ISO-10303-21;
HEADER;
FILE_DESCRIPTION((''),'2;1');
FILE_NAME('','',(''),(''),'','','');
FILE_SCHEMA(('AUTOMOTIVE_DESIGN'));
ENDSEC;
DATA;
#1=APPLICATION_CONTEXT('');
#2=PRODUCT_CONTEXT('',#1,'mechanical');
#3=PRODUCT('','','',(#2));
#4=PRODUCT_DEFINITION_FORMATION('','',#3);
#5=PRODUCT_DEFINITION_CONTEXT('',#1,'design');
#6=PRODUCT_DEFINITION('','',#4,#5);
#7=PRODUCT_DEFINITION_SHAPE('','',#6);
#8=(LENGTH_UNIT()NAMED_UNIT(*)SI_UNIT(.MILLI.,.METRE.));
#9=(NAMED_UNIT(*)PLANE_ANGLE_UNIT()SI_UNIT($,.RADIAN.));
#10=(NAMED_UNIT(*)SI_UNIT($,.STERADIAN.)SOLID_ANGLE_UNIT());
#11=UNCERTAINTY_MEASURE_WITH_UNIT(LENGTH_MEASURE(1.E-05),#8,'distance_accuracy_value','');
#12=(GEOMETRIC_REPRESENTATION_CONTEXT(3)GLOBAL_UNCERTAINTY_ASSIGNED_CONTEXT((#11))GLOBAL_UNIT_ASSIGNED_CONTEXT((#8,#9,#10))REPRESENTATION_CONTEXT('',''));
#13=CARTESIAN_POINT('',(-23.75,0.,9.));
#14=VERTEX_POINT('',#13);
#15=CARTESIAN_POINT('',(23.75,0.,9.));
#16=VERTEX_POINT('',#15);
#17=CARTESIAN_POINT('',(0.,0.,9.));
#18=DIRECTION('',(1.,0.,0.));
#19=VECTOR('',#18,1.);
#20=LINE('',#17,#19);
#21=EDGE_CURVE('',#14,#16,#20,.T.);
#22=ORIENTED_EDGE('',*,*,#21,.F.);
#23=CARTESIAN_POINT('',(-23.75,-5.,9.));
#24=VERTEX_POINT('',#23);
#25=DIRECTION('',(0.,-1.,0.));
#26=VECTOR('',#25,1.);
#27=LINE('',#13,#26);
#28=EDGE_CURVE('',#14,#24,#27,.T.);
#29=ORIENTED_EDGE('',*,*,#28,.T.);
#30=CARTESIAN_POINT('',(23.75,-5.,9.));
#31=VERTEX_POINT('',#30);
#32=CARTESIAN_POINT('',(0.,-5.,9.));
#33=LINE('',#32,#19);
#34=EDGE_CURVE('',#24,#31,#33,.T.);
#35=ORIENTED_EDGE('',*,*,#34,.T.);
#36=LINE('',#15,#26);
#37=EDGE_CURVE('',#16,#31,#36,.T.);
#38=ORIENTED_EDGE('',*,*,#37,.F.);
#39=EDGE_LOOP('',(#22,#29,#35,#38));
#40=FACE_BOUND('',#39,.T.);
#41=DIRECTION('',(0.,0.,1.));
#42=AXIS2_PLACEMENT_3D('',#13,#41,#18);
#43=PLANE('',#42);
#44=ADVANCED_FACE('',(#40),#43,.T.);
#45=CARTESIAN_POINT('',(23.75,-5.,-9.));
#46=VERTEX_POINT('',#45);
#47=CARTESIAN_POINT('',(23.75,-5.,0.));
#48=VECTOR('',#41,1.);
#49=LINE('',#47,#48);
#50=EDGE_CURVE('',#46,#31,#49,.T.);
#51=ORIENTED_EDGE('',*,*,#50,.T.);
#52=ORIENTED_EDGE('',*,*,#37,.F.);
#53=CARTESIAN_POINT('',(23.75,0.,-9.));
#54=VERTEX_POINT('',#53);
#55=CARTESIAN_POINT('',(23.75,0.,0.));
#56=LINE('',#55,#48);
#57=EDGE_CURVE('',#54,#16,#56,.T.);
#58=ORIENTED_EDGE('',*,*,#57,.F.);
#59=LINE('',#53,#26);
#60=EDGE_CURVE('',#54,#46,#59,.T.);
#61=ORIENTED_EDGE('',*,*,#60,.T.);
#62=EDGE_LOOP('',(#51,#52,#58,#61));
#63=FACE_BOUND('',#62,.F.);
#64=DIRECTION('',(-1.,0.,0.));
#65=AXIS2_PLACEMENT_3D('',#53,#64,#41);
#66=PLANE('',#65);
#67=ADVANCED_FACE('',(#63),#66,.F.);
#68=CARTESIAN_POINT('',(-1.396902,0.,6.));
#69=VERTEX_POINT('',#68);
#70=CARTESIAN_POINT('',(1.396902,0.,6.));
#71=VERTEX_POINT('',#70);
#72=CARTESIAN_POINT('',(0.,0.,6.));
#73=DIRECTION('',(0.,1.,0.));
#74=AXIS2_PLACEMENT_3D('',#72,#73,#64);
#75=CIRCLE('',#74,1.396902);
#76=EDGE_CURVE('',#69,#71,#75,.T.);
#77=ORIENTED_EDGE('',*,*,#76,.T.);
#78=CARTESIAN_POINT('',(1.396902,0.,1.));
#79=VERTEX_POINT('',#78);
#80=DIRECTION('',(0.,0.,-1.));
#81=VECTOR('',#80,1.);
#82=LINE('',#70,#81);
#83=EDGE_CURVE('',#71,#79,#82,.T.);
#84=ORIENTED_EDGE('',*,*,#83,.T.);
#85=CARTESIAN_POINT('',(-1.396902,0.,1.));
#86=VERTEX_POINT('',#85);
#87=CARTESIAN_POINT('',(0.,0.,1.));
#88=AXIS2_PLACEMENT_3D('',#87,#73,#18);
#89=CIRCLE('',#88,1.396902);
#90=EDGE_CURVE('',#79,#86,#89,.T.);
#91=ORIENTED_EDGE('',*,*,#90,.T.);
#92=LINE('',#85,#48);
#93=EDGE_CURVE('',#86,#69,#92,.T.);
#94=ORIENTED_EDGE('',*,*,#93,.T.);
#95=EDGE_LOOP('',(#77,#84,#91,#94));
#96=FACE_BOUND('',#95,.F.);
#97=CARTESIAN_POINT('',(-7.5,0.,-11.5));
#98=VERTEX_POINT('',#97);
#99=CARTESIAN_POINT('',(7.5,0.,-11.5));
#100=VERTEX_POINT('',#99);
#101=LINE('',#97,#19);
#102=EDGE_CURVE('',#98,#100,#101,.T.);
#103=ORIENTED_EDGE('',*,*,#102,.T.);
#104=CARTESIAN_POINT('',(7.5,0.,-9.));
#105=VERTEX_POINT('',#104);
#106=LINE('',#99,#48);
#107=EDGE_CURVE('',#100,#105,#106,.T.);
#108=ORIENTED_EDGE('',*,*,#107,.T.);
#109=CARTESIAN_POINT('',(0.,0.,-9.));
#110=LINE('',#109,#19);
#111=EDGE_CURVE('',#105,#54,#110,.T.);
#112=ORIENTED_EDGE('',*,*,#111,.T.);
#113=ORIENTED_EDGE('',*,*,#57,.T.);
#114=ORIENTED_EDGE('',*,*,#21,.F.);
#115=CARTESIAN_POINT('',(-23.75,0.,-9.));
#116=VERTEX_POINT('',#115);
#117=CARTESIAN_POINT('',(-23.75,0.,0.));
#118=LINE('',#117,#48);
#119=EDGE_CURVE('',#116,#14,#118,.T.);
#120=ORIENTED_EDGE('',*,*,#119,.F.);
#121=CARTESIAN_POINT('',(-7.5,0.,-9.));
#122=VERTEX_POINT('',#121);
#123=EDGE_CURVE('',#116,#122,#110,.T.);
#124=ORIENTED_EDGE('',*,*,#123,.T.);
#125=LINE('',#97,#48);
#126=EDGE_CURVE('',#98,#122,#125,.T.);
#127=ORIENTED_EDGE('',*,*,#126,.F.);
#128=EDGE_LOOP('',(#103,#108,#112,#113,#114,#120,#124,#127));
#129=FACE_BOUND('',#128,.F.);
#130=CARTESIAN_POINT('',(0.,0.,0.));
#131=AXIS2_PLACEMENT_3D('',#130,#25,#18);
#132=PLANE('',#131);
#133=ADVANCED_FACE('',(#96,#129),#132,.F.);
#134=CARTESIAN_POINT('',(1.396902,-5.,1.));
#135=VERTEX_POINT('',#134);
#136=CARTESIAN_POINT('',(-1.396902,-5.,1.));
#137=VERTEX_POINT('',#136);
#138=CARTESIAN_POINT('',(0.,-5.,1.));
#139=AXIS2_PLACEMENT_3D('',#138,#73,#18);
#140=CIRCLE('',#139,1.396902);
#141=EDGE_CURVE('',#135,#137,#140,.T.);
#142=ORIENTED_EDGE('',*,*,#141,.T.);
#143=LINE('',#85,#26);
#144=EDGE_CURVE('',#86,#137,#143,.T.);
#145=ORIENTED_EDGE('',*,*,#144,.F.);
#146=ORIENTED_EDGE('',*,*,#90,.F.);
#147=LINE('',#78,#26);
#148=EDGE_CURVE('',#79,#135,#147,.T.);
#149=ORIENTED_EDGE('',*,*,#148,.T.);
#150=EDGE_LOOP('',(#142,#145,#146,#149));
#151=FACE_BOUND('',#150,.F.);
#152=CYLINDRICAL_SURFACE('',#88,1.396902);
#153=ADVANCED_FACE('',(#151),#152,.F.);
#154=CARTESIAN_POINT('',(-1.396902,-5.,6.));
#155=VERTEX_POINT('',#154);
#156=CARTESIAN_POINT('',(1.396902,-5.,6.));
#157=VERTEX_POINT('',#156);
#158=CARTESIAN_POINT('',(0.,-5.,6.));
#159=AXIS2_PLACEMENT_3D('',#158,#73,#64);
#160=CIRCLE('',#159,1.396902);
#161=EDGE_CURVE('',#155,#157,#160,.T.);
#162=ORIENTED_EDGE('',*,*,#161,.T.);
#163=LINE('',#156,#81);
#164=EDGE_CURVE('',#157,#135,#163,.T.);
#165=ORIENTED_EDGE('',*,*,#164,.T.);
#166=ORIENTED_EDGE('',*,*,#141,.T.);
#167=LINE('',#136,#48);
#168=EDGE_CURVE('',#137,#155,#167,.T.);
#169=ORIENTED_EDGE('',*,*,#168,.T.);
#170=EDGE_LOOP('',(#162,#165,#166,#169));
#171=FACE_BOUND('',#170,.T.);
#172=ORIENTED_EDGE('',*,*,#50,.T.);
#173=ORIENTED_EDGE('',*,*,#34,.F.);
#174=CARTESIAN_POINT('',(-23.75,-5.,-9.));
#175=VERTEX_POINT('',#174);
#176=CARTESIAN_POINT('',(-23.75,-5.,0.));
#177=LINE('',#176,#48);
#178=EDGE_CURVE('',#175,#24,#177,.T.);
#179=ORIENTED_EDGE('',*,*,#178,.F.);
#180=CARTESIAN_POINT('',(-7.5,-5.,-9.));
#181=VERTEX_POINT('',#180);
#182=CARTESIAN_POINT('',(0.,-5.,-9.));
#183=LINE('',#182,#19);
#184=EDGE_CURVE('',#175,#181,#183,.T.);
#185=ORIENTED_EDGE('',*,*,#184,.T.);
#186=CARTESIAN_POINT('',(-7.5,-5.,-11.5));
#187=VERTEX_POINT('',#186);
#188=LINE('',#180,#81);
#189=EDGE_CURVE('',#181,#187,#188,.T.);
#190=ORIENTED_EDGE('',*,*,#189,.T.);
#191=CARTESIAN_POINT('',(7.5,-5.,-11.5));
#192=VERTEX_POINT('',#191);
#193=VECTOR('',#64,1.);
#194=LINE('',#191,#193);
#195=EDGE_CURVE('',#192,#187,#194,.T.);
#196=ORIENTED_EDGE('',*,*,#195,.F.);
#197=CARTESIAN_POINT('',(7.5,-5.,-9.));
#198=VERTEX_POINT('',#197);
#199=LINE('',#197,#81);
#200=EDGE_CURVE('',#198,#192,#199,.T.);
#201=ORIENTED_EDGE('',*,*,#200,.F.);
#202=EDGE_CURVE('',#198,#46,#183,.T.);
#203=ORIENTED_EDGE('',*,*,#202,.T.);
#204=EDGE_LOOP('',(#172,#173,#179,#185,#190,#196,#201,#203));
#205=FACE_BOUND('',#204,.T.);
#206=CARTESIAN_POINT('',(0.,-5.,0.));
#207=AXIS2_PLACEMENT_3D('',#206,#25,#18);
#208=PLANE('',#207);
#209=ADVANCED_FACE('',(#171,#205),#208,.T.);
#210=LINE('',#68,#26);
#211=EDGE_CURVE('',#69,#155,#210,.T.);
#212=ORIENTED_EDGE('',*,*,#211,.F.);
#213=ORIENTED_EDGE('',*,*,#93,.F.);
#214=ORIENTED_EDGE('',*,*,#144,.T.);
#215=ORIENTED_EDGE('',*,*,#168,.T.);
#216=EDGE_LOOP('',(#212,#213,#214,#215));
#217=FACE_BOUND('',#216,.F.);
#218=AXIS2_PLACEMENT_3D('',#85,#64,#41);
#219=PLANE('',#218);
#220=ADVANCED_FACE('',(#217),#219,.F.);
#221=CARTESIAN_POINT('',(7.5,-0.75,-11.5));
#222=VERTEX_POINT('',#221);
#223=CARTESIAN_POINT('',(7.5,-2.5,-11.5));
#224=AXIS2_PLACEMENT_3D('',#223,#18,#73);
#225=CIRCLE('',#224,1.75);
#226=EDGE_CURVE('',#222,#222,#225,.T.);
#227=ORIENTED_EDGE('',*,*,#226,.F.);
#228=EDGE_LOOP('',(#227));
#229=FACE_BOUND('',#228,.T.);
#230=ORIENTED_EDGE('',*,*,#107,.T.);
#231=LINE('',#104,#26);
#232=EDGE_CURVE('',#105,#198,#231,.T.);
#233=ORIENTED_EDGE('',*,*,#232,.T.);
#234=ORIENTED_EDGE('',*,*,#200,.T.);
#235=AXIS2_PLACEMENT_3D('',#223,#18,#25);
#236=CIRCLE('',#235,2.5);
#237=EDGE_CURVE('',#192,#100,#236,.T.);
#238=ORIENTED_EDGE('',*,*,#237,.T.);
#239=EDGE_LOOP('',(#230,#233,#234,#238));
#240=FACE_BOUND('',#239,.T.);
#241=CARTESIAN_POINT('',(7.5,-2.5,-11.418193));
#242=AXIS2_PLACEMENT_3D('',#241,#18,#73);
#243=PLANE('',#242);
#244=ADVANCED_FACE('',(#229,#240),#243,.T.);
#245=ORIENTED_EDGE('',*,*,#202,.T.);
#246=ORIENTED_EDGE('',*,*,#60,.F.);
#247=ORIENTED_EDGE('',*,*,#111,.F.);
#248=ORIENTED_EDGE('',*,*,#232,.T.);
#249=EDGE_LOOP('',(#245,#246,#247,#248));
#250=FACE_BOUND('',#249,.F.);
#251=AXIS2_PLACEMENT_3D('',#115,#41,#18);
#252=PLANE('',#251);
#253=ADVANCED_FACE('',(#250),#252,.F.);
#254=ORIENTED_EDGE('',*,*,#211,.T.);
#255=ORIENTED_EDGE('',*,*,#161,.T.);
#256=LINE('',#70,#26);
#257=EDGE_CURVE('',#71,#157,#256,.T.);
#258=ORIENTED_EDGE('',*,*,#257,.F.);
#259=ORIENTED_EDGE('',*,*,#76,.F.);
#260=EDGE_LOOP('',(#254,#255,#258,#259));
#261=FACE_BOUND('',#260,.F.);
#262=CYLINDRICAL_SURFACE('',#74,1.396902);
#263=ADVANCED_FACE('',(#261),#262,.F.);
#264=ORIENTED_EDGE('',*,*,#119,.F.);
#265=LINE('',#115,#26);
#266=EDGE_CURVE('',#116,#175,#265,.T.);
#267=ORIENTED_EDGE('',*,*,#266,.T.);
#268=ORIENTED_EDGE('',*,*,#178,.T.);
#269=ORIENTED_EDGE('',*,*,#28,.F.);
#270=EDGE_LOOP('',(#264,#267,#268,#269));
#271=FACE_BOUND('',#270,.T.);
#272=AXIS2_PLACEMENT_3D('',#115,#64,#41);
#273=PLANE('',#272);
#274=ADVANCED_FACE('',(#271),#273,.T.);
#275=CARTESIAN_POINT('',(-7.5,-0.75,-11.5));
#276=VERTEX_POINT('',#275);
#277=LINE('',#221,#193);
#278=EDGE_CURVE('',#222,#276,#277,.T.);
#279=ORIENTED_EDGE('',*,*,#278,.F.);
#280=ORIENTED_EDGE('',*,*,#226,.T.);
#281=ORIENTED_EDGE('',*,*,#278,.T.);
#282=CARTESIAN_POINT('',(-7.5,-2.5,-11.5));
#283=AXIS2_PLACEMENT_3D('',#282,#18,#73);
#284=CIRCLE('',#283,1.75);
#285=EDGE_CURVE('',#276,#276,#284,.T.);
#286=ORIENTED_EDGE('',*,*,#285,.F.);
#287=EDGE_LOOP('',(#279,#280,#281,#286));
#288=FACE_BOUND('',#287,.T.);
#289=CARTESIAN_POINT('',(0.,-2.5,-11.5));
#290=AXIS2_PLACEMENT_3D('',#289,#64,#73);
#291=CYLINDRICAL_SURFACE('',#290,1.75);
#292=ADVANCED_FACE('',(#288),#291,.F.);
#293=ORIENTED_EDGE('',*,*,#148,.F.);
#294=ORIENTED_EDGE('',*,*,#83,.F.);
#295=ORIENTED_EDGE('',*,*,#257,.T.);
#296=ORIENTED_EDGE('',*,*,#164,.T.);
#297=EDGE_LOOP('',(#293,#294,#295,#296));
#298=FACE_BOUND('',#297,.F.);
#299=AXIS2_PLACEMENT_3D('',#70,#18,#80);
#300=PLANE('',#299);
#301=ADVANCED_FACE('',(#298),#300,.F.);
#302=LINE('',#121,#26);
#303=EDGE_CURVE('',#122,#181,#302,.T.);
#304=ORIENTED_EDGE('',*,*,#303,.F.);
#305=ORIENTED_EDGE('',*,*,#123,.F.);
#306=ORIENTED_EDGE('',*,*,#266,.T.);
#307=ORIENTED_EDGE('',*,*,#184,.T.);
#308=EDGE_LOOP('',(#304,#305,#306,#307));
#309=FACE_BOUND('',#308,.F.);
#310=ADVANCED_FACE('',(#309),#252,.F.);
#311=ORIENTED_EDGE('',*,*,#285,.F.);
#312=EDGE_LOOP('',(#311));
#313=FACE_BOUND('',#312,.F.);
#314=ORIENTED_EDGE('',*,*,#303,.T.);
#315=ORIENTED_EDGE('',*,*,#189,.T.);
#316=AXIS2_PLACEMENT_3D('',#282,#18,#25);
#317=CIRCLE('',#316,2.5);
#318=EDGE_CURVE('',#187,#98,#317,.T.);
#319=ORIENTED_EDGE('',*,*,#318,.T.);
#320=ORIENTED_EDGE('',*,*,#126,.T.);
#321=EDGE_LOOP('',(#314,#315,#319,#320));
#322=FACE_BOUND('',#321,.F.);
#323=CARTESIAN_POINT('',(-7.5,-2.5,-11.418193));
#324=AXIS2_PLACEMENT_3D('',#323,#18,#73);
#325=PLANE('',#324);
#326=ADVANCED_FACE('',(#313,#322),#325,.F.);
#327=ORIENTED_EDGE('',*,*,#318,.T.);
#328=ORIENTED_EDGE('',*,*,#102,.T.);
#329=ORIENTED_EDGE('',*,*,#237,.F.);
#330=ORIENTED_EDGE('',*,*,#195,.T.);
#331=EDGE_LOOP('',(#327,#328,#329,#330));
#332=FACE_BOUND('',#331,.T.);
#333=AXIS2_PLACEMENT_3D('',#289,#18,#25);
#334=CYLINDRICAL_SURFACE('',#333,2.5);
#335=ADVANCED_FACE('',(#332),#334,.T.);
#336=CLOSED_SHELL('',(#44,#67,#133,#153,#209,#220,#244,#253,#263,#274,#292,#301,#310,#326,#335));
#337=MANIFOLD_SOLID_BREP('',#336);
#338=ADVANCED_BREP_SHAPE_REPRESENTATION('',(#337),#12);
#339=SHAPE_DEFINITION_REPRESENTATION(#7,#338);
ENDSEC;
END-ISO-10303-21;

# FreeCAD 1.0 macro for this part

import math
import FreeCAD as App
import Part
import Sketcher
Q = App.Units.Quantity


def add_polygon(sketch, points):
    """Adds a closed chain of lines whose ends are joined by coincident constraints."""
    first, n = sketch.GeometryCount, len(points)
    for a, b in zip(points, points[1:] + points[:1]):
        sketch.addGeometry(Part.LineSegment(App.Vector(*a, 0), App.Vector(*b, 0)), False)
    for i in range(n):
        sketch.addConstraint(Sketcher.Constraint("Coincident", first + i, 2, first + (i + 1) % n, 1))

doc = App.newDocument("Part")
params = doc.addObject("Spreadsheet::Sheet", "Params")
for row, (alias, value) in enumerate([
    ("sketch1_height", "18 mm"),
    ("sketch1_height2", "5 mm"),
    ("sketch1_width", "47.5 mm"),
    ("pad1_length", "5 mm"),
    ("sketch2_diameter", "3.5 mm"),
    ("sketch2_radius", "2.5 mm"),
    ("sketch2_height", "2.5 mm"),
    ("pad2_length", "15 mm"),
], start=1):
    params.set(f"A{row}", alias)
    params.set(f"B{row}", "=" + value)
    params.setAlias(f"B{row}", alias)

body = doc.addObject("PartDesign::Body", "Body")

# Sketch on XZ plane
sketch1 = body.newObject("Sketcher::SketchObject", "Sketch")
sketch1.AttachmentSupport = (doc.getObject("XZ_Plane"), [""])
sketch1.MapMode = "FlatFace"
add_polygon(sketch1, [(-23.75, 9), (-23.75, -9), (23.75, -9), (23.75, 9)])  # lines 0-3
sketch1.addGeometry(Part.LineSegment(App.Vector(1.396902, 6, 0), App.Vector(1.396902, 1, 0)), False)  # 4
sketch1.addGeometry(Part.ArcOfCircle(Part.Circle(App.Vector(0, 1, 0), App.Vector(0, 0, 1), 1.396902), math.radians(180), math.radians(360)), False)  # 5
sketch1.addGeometry(Part.LineSegment(App.Vector(-1.396902, 1, 0), App.Vector(-1.396902, 6, 0)), False)  # 6
sketch1.addGeometry(Part.ArcOfCircle(Part.Circle(App.Vector(0, 6, 0), App.Vector(0, 0, 1), 1.396902), math.radians(0), math.radians(180)), False)  # 7
sketch1.addConstraint(Sketcher.Constraint("Tangent", 4, 2, 5, 2))
sketch1.addConstraint(Sketcher.Constraint("Tangent", 5, 1, 6, 1))
sketch1.addConstraint(Sketcher.Constraint("Tangent", 6, 2, 7, 2))
sketch1.addConstraint(Sketcher.Constraint("Tangent", 7, 1, 4, 1))
sketch1.addConstraint(Sketcher.Constraint("Vertical", 0))
sketch1.addConstraint(Sketcher.Constraint("Horizontal", 1))
sketch1.addConstraint(Sketcher.Constraint("Vertical", 2))
sketch1.addConstraint(Sketcher.Constraint("Horizontal", 3))
sketch1.addConstraint(Sketcher.Constraint("Vertical", 4))
sketch1.addConstraint(Sketcher.Constraint("Vertical", 6))
sketch1.addConstraint(Sketcher.Constraint("Symmetric", 0, 2, 2, 2, -1, 1))
sketch1.addConstraint(Sketcher.Constraint("PointOnObject", 5, 3, -2))
sketch1.addConstraint(Sketcher.Constraint("DistanceY", 0, 2, 0, 1, Q("18 mm")))
sketch1.addConstraint(Sketcher.Constraint("DistanceY", 4, 2, 4, 1, Q("5 mm")))
sketch1.addConstraint(Sketcher.Constraint("DistanceX", 1, 1, 1, 2, Q("47.5 mm")))
sketch1.addConstraint(Sketcher.Constraint("DistanceY", -1, 1, 5, 3, Q("1 mm")))
sketch1.addConstraint(Sketcher.Constraint("Radius", 5, Q("1.396902 mm")))
sketch1.setExpression("Constraints[16]", "Params.sketch1_height")
sketch1.setExpression("Constraints[17]", "Params.sketch1_height2")
sketch1.setExpression("Constraints[18]", "Params.sketch1_width")
pad1 = body.newObject("PartDesign::Pad", "Pad")
pad1.Profile = sketch1
pad1.setExpression("Length", "Params.pad1_length")

# Sketch on YZ plane
sketch2 = body.newObject("Sketcher::SketchObject", "Sketch001")
sketch2.AttachmentSupport = (doc.getObject("YZ_Plane"), [""])
sketch2.MapMode = "FlatFace"
sketch2.addGeometry(Part.ArcOfCircle(Part.Circle(App.Vector(-2.5, -11.5, 0), App.Vector(0, 0, 1), 2.5), math.radians(180), math.radians(360)), False)
sketch2.addGeometry(Part.LineSegment(App.Vector(0, -11.5, 0), App.Vector(0, -9, 0)), False)
sketch2.addGeometry(Part.LineSegment(App.Vector(0, -9, 0), App.Vector(-5, -9, 0)), False)
sketch2.addGeometry(Part.LineSegment(App.Vector(-5, -9, 0), App.Vector(-5, -11.5, 0)), False)
sketch2.addGeometry(Part.Circle(App.Vector(-2.5, -11.5, 0), App.Vector(0, 0, 1), 1.75), False)
sketch2.addConstraint(Sketcher.Constraint("Tangent", 0, 2, 1, 1))
sketch2.addConstraint(Sketcher.Constraint("Coincident", 1, 2, 2, 1))
sketch2.addConstraint(Sketcher.Constraint("Coincident", 2, 2, 3, 1))
sketch2.addConstraint(Sketcher.Constraint("Tangent", 3, 2, 0, 1))
sketch2.addConstraint(Sketcher.Constraint("Vertical", 1))
sketch2.addConstraint(Sketcher.Constraint("Horizontal", 2))
sketch2.addConstraint(Sketcher.Constraint("Vertical", 3))
sketch2.addConstraint(Sketcher.Constraint("Coincident", 4, 3, 0, 3))
sketch2.addConstraint(Sketcher.Constraint("PointOnObject", 0, 2, -2))
sketch2.addConstraint(Sketcher.Constraint("Diameter", 4, Q("3.5 mm")))
sketch2.addConstraint(Sketcher.Constraint("Radius", 0, Q("2.5 mm")))
sketch2.addConstraint(Sketcher.Constraint("DistanceY", 1, 1, 1, 2, Q("2.5 mm")))
sketch2.addConstraint(Sketcher.Constraint("DistanceY", 1, 2, -1, 1, Q("9 mm")))
sketch2.setExpression("Constraints[9]", "Params.sketch2_diameter")
sketch2.setExpression("Constraints[10]", "Params.sketch2_radius")
sketch2.setExpression("Constraints[11]", "Params.sketch2_height")
pad2 = body.newObject("PartDesign::Pad", "Pad001")
pad2.Profile = sketch2
pad2.setExpression("Length", "Params.pad2_length")
pad2.Midplane = True

doc.recompute()
